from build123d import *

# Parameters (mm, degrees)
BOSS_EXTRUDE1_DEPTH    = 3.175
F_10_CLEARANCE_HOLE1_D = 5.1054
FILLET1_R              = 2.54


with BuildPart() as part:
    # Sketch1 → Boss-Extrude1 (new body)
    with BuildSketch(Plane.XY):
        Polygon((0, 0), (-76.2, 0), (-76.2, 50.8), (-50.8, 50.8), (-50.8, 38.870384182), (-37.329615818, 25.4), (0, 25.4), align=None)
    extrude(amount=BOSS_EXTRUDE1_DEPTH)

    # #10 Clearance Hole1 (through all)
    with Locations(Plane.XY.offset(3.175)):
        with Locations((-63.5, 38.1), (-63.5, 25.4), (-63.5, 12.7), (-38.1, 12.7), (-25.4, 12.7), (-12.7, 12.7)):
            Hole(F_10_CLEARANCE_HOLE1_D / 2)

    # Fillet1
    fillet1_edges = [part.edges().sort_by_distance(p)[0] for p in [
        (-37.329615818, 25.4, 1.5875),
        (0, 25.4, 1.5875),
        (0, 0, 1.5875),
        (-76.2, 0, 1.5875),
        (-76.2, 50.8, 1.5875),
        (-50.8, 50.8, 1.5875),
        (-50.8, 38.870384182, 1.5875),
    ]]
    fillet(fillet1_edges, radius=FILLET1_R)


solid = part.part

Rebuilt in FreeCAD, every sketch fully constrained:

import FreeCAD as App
import Part
import Sketcher

V = App.Vector
Q = App.Units.Quantity


def edges_at(feature, points):
    """Names of the edges that pass closest to the given points."""
    edges = feature.Shape.Edges
    near = lambda p: min(range(len(edges)), key=lambda i: edges[i].distToShape(Part.Vertex(*p))[0])
    return sorted({f"Edge{near(p) + 1}" for p in points})

doc = App.newDocument("Part")
body = doc.addObject("PartDesign::Body", "Body")

# Sketch on XY plane
sketch1 = doc.addObject("Sketcher::SketchObject", "Sketch")
body.addObject(sketch1)
sketch1.AttachmentSupport = (doc.XY_Plane, [""])
sketch1.MapMode = "FlatFace"
sketch1.addGeometry(Part.LineSegment(V(-76.2, 0, 0), V(0, 0, 0)), False)
sketch1.addGeometry(Part.LineSegment(V(0, 0, 0), V(0, 25.4, 0)), False)
sketch1.addGeometry(Part.LineSegment(V(0, 25.4, 0), V(-37.329616, 25.4, 0)), False)
sketch1.addGeometry(Part.LineSegment(V(-37.329616, 25.4, 0), V(-50.8, 38.870384, 0)), False)
sketch1.addGeometry(Part.LineSegment(V(-50.8, 38.870384, 0), V(-50.8, 50.8, 0)), False)
sketch1.addGeometry(Part.LineSegment(V(-50.8, 50.8, 0), V(-76.2, 50.8, 0)), False)
sketch1.addGeometry(Part.LineSegment(V(-76.2, 50.8, 0), V(-76.2, 0, 0)), False)
sketch1.addConstraint(Sketcher.Constraint("Coincident", 0, 2, 1, 1))
sketch1.addConstraint(Sketcher.Constraint("Coincident", 1, 2, 2, 1))
sketch1.addConstraint(Sketcher.Constraint("Coincident", 2, 2, 3, 1))
sketch1.addConstraint(Sketcher.Constraint("Coincident", 3, 2, 4, 1))
sketch1.addConstraint(Sketcher.Constraint("Coincident", 4, 2, 5, 1))
sketch1.addConstraint(Sketcher.Constraint("Coincident", 5, 2, 6, 1))
sketch1.addConstraint(Sketcher.Constraint("Coincident", 6, 2, 0, 1))
sketch1.addConstraint(Sketcher.Constraint("Horizontal", 0))
sketch1.addConstraint(Sketcher.Constraint("Vertical", 1))
sketch1.addConstraint(Sketcher.Constraint("Horizontal", 2))
sketch1.addConstraint(Sketcher.Constraint("Vertical", 4))
sketch1.addConstraint(Sketcher.Constraint("Horizontal", 5))
sketch1.addConstraint(Sketcher.Constraint("Vertical", 6))
sketch1.addConstraint(Sketcher.Constraint("Coincident", 0, 2, -1, 1))
sketch1.addConstraint(Sketcher.Constraint("Equal", 5, 1))
sketch1.addConstraint(Sketcher.Constraint("DistanceX", 0, 1, 0, 2, Q("3 in")))
sketch1.addConstraint(Sketcher.Constraint("DistanceX", 5, 2, 5, 1, Q("1 in")))
sketch1.addConstraint(Sketcher.Constraint("DistanceY", 6, 2, 6, 1, Q("2 in")))
sketch1.addConstraint(Sketcher.Constraint("Angle", 3, Q("135 deg")))
sketch1.addConstraint(Sketcher.Constraint("Distance", 3, Q("0.75 in")))
pad1 = doc.addObject("PartDesign::Pad", "Pad")
body.addObject(pad1)
pad1.Profile = sketch1
pad1.Length = Q("0.125 in")

# Sketch on XY plane
sketch2 = doc.addObject("Sketcher::SketchObject", "Sketch001")
body.addObject(sketch2)
sketch2.AttachmentSupport = (doc.XY_Plane, [""])
sketch2.MapMode = "FlatFace"
sketch2.AttachmentOffset = App.Placement(V(0, 0, 0.125 * 25.4), App.Rotation())
sketch2.addGeometry(Part.Circle(V(-63.5, 38.1, 0), V(0, 0, 1), 2.5527), False)
sketch2.addGeometry(Part.Circle(V(-63.5, 25.4, 0), V(0, 0, 1), 2.5527), False)
sketch2.addGeometry(Part.Circle(V(-63.5, 12.7, 0), V(0, 0, 1), 2.5527), False)
sketch2.addGeometry(Part.Circle(V(-38.1, 12.7, 0), V(0, 0, 1), 2.5527), False)
sketch2.addGeometry(Part.Circle(V(-25.4, 12.7, 0), V(0, 0, 1), 2.5527), False)
sketch2.addGeometry(Part.Circle(V(-12.7, 12.7, 0), V(0, 0, 1), 2.5527), False)
sketch2.addConstraint(Sketcher.Constraint("Equal", 0, 1))
sketch2.addConstraint(Sketcher.Constraint("Equal", 1, 2))
sketch2.addConstraint(Sketcher.Constraint("Equal", 2, 3))
sketch2.addConstraint(Sketcher.Constraint("Equal", 3, 4))
sketch2.addConstraint(Sketcher.Constraint("Equal", 4, 5))
sketch2.addConstraint(Sketcher.Constraint("Horizontal", 2, 3, 3, 3))
sketch2.addConstraint(Sketcher.Constraint("Horizontal", 3, 3, 4, 3))
sketch2.addConstraint(Sketcher.Constraint("Horizontal", 4, 3, 5, 3))
sketch2.addConstraint(Sketcher.Constraint("Vertical", 0, 3, 1, 3))
sketch2.addConstraint(Sketcher.Constraint("Vertical", 1, 3, 2, 3))
sketch2.addConstraint(Sketcher.Constraint("Diameter", 0, Q("0.201 in")))
sketch2.addConstraint(Sketcher.Constraint("DistanceY", -1, 1, 1, 3, Q("1 in")))
sketch2.addConstraint(Sketcher.Constraint("DistanceX", 4, 3, -1, 1, Q("1 in")))
sketch2.addConstraint(Sketcher.Constraint("DistanceY", 2, 3, 0, 3, Q("1 in")))
sketch2.addConstraint(Sketcher.Constraint("DistanceX", 2, 3, 3, 3, Q("1 in")))
sketch2.addConstraint(Sketcher.Constraint("DistanceX", 3, 3, 5, 3, Q("1 in")))
sketch2.addConstraint(Sketcher.Constraint("DistanceX", 0, 3, -1, 1, Q("2.5 in")))
sketch2.addConstraint(Sketcher.Constraint("DistanceY", -1, 1, 0, 3, Q("1.5 in")))
doc.recompute()
hole = doc.addObject("PartDesign::Hole", "Hole")
body.addObject(hole)
hole.Profile = sketch2
hole.ThreadType = "None"
hole.Diameter = Q("0.201 in")
hole.DepthType = "ThroughAll"
doc.recompute()

fillet = doc.addObject("PartDesign::Fillet", "Fillet")
body.addObject(fillet)
fillet.Base = (hole, edges_at(hole, [
    (-37.33, 25.4, 1.587),
    (0, 25.4, 1.587),
    (0, 0, 1.587),
    (-76.2, 0, 1.587),
    (-76.2, 50.8, 1.587),
    (-50.8, 50.8, 1.587),
    (-50.8, 38.87, 1.587),
]))
fillet.Radius = Q("0.1 in")

doc.recompute()
